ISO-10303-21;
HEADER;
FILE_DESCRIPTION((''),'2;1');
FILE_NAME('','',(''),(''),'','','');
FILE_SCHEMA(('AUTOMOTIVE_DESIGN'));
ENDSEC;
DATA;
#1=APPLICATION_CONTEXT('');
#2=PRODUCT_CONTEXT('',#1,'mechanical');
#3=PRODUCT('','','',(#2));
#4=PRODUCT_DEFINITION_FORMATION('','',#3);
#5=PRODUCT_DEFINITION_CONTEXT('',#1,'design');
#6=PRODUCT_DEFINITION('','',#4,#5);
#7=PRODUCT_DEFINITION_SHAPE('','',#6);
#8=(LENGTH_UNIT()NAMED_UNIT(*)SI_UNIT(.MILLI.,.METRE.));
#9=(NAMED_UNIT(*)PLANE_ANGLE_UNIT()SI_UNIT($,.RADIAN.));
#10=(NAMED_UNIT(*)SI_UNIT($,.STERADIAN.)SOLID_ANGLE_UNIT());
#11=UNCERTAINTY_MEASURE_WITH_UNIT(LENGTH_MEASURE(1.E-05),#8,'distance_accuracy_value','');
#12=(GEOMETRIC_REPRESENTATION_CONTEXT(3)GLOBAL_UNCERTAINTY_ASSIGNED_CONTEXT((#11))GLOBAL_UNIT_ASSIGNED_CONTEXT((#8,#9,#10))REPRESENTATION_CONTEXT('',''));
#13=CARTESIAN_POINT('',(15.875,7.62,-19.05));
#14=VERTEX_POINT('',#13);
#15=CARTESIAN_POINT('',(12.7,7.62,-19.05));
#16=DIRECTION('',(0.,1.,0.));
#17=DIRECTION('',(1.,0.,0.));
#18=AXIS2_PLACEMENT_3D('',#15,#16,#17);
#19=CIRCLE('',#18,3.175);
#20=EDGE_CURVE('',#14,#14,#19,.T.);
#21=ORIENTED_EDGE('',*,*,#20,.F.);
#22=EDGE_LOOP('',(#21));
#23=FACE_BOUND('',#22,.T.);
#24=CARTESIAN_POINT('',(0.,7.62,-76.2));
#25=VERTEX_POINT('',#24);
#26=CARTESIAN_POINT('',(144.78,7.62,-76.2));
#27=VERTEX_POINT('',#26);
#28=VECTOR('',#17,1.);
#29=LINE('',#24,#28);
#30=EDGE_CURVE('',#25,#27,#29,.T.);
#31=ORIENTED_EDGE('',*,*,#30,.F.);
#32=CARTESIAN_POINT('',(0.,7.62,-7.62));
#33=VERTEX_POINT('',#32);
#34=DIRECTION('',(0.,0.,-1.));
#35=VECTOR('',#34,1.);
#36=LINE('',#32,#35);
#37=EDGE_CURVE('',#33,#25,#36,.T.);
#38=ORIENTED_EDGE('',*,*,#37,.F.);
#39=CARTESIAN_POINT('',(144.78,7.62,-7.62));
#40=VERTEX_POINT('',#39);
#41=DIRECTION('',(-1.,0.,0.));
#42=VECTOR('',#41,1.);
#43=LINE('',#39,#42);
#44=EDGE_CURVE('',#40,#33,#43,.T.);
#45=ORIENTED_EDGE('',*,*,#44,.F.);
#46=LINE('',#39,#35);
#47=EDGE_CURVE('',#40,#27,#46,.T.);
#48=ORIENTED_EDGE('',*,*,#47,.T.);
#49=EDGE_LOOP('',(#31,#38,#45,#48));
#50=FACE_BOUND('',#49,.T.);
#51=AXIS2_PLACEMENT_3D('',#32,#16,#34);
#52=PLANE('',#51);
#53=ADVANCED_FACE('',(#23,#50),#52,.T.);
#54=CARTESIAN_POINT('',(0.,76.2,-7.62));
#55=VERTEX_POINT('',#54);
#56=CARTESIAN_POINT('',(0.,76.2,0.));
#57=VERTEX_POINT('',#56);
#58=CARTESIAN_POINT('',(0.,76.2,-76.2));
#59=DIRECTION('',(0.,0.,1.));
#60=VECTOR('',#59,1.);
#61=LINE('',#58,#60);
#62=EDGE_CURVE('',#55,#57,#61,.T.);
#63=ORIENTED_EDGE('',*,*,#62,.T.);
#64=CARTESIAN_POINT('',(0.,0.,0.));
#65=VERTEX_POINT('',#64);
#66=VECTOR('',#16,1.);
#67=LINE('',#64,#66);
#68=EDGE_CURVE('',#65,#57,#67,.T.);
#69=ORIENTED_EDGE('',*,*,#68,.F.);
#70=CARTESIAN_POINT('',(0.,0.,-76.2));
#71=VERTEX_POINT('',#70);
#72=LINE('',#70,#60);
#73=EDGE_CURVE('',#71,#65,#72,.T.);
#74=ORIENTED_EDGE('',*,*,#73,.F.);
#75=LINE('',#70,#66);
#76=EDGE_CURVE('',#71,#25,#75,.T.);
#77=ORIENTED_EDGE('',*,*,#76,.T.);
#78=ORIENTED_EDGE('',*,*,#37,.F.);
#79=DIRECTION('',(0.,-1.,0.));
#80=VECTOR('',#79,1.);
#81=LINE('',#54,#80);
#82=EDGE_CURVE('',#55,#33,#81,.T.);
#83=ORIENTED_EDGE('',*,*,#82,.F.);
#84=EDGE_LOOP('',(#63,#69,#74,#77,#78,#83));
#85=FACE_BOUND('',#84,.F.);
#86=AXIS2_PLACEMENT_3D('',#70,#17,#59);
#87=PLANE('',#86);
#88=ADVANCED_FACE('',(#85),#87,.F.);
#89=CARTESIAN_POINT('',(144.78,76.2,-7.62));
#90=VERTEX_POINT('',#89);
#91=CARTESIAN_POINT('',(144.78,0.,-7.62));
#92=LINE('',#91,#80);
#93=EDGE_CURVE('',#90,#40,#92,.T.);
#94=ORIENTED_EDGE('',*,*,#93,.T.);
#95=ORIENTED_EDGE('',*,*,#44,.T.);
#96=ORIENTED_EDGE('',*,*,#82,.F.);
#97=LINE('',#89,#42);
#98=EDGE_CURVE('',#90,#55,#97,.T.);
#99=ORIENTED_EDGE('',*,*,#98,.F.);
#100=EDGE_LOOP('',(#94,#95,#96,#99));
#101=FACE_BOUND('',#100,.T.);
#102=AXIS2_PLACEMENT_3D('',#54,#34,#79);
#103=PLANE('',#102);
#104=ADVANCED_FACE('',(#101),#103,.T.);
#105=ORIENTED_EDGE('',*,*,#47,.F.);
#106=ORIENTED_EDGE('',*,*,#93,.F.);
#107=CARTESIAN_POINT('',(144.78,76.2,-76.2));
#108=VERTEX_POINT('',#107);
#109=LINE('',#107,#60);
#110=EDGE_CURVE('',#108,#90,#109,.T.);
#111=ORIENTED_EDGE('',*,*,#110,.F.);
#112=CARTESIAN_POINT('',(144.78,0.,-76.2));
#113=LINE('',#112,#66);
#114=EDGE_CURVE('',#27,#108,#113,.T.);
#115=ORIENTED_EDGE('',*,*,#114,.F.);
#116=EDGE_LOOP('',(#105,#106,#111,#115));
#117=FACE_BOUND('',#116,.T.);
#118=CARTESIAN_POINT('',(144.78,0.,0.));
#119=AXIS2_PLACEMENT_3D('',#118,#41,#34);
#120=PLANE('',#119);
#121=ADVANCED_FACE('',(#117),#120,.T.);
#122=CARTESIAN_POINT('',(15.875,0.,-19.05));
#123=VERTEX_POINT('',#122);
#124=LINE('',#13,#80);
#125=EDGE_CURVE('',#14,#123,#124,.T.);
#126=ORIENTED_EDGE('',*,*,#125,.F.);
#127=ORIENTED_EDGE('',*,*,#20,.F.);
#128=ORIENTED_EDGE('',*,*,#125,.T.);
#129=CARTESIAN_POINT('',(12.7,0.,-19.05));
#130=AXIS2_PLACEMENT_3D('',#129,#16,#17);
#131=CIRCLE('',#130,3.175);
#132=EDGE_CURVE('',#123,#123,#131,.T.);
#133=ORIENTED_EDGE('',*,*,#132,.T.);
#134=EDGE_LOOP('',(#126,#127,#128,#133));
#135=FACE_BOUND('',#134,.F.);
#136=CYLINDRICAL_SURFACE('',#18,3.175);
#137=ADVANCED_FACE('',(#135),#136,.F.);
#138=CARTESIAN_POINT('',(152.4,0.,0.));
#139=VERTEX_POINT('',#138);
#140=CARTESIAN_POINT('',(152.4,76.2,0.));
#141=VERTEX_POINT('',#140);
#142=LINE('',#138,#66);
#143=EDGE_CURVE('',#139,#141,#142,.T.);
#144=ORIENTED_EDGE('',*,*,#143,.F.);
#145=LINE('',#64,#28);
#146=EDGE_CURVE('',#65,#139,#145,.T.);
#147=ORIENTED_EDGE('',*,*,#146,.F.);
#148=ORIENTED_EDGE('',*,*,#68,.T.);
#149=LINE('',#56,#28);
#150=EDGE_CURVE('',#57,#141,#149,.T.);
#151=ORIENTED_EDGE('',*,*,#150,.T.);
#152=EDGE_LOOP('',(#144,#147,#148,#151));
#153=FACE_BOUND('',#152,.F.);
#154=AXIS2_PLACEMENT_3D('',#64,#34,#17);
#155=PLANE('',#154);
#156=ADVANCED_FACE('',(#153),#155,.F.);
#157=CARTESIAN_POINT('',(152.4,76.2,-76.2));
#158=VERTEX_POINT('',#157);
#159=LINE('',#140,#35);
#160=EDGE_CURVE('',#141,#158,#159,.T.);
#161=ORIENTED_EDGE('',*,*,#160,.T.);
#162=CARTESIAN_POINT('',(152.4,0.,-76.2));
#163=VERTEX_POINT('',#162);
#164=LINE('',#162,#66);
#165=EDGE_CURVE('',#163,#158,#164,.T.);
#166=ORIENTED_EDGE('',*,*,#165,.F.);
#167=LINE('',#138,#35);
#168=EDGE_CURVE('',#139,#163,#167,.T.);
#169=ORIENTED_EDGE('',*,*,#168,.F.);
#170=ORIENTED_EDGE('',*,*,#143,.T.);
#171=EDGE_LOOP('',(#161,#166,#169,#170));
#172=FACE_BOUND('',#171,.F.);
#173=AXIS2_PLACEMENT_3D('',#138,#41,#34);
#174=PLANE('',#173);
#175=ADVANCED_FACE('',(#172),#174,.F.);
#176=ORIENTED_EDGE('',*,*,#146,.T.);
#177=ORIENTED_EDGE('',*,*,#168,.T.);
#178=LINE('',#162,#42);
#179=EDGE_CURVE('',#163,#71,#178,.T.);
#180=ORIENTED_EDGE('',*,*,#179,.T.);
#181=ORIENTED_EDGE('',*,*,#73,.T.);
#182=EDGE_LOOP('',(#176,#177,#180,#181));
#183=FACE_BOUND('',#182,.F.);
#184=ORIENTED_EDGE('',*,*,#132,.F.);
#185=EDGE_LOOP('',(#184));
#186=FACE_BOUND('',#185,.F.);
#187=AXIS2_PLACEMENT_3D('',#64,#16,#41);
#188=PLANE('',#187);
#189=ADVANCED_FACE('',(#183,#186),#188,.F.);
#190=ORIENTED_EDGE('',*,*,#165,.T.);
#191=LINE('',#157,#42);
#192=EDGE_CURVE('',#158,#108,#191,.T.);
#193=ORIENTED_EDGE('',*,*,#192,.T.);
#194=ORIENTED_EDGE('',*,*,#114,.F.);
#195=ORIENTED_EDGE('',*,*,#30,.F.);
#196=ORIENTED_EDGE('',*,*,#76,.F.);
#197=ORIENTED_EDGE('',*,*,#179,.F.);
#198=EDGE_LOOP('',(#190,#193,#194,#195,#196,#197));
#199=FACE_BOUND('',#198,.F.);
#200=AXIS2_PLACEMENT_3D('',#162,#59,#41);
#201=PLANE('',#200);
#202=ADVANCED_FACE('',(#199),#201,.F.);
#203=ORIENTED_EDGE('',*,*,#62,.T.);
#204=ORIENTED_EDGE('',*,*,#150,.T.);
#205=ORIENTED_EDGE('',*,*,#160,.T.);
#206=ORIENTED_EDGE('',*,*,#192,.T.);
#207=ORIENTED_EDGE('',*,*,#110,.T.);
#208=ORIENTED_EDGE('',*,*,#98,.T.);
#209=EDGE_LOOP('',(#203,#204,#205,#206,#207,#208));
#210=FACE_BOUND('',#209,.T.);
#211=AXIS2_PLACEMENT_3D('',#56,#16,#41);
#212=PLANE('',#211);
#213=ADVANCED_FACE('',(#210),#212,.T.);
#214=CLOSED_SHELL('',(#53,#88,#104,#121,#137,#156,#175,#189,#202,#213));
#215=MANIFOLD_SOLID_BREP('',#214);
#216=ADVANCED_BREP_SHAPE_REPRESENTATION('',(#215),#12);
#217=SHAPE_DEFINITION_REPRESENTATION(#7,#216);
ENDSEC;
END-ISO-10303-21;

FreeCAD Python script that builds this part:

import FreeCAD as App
import Part
import Sketcher
Q = App.Units.Quantity


def faces_at(feature, points):
    """Names of the faces that lie closest to the given points."""
    faces = feature.Shape.Faces
    near = lambda p: min(range(len(faces)), key=lambda i: faces[i].distToShape(Part.Vertex(*p))[0])
    return sorted({f"Face{near(p) + 1}" for p in points})

doc = App.newDocument("Part")
body = doc.addObject("PartDesign::Body", "Body")

sketch1 = doc.addObject("Sketcher::SketchObject", "Sketch")
body.addObject(sketch1)
sketch1.AttachmentSupport = (doc.XZ_Plane, [""])
sketch1.MapMode = "FlatFace"
sketch1.addGeometry([
    Part.LineSegment(App.Vector(0, -76, 0), App.Vector(0, 0, 0)),
    Part.LineSegment(App.Vector(0, 0, 0), App.Vector(152, 0, 0)),
    Part.LineSegment(App.Vector(152, 0, 0), App.Vector(152, -76, 0)),
    Part.LineSegment(App.Vector(152, -76, 0), App.Vector(0, -76, 0)),
], False)
sketch1.addConstraint([
    Sketcher.Constraint("Coincident", 0, 2, 1, 1),
    Sketcher.Constraint("Coincident", 1, 2, 2, 1),
    Sketcher.Constraint("Coincident", 2, 2, 3, 1),
    Sketcher.Constraint("Coincident", 3, 2, 0, 1),
    Sketcher.Constraint("Vertical", 0),
    Sketcher.Constraint("Horizontal", 1),
    Sketcher.Constraint("Vertical", 2),
    Sketcher.Constraint("Horizontal", 3),
    Sketcher.Constraint("Coincident", 0, 2, -1, 1),
    Sketcher.Constraint("DistanceX", 1, 1, 1, 2, Q("6 in")),
    Sketcher.Constraint("DistanceY", 0, 1, 0, 2, Q("3 in")),
])
pad1 = doc.addObject("PartDesign::Pad", "Pad")
body.addObject(pad1)
pad1.Profile = sketch1
pad1.Length = Q("3 in")
pad1.Reversed = True
doc.recompute()

thickness = doc.addObject("PartDesign::Thickness", "Thickness")
body.addObject(thickness)
thickness.Base = (pad1, faces_at(pad1, [(101.6, 76.2, -25.4)]))
thickness.Value = Q("0.3 in")
thickness.Reversed = True
thickness.Join = "Intersection"

sketch2 = doc.addObject("Sketcher::SketchObject", "Sketch001")
body.addObject(sketch2)
sketch2.AttachmentSupport = (doc.YZ_Plane, [""])
sketch2.MapMode = "FlatFace"
sketch2.addGeometry([
    Part.LineSegment(App.Vector(76, -76, 0), App.Vector(8, -76, 0)),
    Part.LineSegment(App.Vector(8, -76, 0), App.Vector(8, -8, 0)),
    Part.LineSegment(App.Vector(8, -8, 0), App.Vector(76, -8, 0)),
    Part.LineSegment(App.Vector(76, -8, 0), App.Vector(76, -76, 0)),
], False)
sketch2.addConstraint([
    Sketcher.Constraint("Coincident", 0, 2, 1, 1),
    Sketcher.Constraint("Coincident", 1, 2, 2, 1),
    Sketcher.Constraint("Coincident", 2, 2, 3, 1),
    Sketcher.Constraint("Coincident", 3, 2, 0, 1),
    Sketcher.Constraint("Horizontal", 0),
    Sketcher.Constraint("Vertical", 1),
    Sketcher.Constraint("Horizontal", 2),
    Sketcher.Constraint("Vertical", 3),
    Sketcher.Constraint("Equal", 2, 1),
    Sketcher.Constraint("DistanceX", -1, 1, 0, 2, Q("0.3 in")),
    Sketcher.Constraint("DistanceY", 1, 2, -1, 1, Q("0.3 in")),
    Sketcher.Constraint("DistanceX", 0, 2, 0, 1, Q("2.7 in")),
])
pocket1 = doc.addObject("PartDesign::Pocket", "Pocket")
body.addObject(pocket1)
pocket1.Profile = sketch2
pocket1.Length = Q("5.7 in")
pocket1.Reversed = True

sketch3 = doc.addObject("Sketcher::SketchObject", "Sketch002")
body.addObject(sketch3)
sketch3.AttachmentSupport = (doc.XZ_Plane, [""])
sketch3.MapMode = "FlatFace"
sketch3.AttachmentOffset = App.Placement(App.Vector(0, 0, -0.3 * 25.4), App.Rotation())
sketch3.addGeometry(Part.Circle(App.Vector(12.7, -19.1, 0), App.Vector(0, 0, 1), 3.2), False)
sketch3.addConstraint([
    Sketcher.Constraint("Diameter", 0, Q("0.25 in")),
    Sketcher.Constraint("DistanceX", -1, 1, 0, 3, Q("0.5 in")),
    Sketcher.Constraint("DistanceY", 0, 3, -1, 1, Q("0.75 in")),
])
pocket2 = doc.addObject("PartDesign::Pocket", "Pocket001")
body.addObject(pocket2)
pocket2.Profile = sketch3
pocket2.Length = Q("1 in")
pocket2.Reversed = True

doc.recompute()
